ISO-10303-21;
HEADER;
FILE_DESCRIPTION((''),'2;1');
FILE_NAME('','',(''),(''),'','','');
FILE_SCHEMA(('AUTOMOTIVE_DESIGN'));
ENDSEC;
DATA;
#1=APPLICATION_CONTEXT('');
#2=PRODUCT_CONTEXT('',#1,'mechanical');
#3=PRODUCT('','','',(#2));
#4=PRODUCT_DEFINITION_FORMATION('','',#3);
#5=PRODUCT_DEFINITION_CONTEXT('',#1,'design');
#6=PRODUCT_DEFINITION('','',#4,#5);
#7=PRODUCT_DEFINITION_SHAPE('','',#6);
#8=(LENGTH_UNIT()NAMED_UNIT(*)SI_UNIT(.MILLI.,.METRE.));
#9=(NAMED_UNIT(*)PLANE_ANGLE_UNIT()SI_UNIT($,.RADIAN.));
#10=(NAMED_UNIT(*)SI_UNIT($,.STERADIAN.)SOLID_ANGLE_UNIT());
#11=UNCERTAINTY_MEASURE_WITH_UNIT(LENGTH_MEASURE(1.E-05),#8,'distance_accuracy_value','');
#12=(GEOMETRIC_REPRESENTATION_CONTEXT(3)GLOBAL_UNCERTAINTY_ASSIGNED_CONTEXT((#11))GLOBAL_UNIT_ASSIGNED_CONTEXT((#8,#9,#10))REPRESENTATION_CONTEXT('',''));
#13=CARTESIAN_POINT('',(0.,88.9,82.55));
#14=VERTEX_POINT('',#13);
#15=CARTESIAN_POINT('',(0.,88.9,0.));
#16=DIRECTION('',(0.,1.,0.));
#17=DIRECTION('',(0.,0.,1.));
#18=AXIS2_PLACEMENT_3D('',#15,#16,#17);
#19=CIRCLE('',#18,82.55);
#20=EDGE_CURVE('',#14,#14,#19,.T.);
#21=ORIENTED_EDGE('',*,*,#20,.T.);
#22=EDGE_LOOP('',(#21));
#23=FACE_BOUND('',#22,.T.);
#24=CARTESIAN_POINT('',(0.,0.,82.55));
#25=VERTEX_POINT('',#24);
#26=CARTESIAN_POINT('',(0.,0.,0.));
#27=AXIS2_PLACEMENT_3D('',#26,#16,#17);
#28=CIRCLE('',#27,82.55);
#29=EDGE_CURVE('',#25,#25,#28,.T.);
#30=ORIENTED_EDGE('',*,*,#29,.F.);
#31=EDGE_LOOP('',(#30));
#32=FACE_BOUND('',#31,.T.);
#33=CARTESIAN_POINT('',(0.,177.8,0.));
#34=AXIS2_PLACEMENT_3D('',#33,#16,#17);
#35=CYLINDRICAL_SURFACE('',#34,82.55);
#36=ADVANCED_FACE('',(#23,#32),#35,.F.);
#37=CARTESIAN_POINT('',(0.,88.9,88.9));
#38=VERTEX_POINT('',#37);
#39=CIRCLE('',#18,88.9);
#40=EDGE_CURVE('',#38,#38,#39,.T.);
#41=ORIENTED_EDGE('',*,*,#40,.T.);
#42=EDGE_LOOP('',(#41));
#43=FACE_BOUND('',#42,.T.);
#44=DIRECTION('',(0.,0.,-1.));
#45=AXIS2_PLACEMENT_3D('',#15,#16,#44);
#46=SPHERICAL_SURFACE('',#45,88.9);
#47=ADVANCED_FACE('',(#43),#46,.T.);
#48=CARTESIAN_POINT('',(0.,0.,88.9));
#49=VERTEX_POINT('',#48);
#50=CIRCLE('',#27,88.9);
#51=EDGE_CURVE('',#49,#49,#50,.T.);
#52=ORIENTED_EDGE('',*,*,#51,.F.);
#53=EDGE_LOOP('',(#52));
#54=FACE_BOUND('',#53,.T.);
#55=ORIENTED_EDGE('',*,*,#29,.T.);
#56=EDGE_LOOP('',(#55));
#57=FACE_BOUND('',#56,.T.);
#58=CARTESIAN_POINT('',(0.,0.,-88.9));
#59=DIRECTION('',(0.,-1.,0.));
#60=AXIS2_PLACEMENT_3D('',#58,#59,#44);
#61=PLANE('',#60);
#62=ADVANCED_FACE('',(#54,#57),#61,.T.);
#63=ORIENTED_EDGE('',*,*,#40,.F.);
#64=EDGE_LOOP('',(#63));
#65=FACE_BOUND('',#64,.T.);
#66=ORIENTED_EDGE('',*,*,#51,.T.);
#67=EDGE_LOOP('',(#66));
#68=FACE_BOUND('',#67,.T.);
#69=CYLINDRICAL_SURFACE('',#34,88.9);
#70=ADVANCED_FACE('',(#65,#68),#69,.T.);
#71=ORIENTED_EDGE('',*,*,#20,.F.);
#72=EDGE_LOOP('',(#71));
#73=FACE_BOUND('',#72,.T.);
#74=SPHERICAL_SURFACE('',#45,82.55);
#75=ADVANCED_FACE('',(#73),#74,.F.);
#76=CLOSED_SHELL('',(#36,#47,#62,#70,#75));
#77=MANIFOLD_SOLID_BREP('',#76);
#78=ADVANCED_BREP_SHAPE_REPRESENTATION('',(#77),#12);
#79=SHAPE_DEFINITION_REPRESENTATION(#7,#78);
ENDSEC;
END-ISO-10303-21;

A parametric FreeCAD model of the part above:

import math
import FreeCAD as App
import Part
import Sketcher
from FreeCAD import Vector
Q = App.Units.Quantity

doc = App.newDocument("Part")
params = doc.addObject("Spreadsheet::Sheet", "Params")
for row, (alias, value) in enumerate([
    ("sketch1_radius", "3.5 in"),
    ("sketch1_radius2", "3.25 in"),
    ("sketch1_width", "3.5 in"),
    ("revolution_angle", "360 deg"),
], start=1):
    params.set(f"A{row}", alias)
    params.set(f"B{row}", "=" + value)
    params.setAlias(f"B{row}", alias)

body = doc.addObject("PartDesign::Body", "Body")

# Sketch on YZ plane
sketch1 = body.newObject("Sketcher::SketchObject", "Sketch")
sketch1.AttachmentSupport = (doc.getObject("YZ_Plane"), [""])
sketch1.MapMode = "FlatFace"
sketch1.addGeometry([
    Part.LineSegment(Vector(0, -88.9, 0), Vector(88.9, -88.9, 0)),  # 0
    Part.ArcOfCircle(Part.Circle(Vector(88.9, 0, 0), Vector(0, 0, 1), 88.9), math.radians(-90), math.radians(0)),  # 1
    Part.LineSegment(Vector(177.8, 0, 0), Vector(171.45, 0, 0)),  # 2
    Part.ArcOfCircle(Part.Circle(Vector(88.9, 0, 0), Vector(0, 0, 1), 82.55), math.radians(-90), math.radians(0)),  # 3
    Part.LineSegment(Vector(88.9, -82.55, 0), Vector(0, -82.55, 0)),  # 4
    Part.LineSegment(Vector(0, -82.55, 0), Vector(0, -88.9, 0)),  # 5
], False)
sketch1.addConstraint([
    Sketcher.Constraint("Tangent", 0, 2, 1, 1),
    Sketcher.Constraint("Coincident", 1, 2, 2, 1),
    Sketcher.Constraint("Coincident", 2, 2, 3, 2),
    Sketcher.Constraint("Tangent", 3, 1, 4, 1),
    Sketcher.Constraint("Coincident", 4, 2, 5, 1),
    Sketcher.Constraint("Coincident", 5, 2, 0, 1),
    Sketcher.Constraint("Horizontal", 0),
    Sketcher.Constraint("Horizontal", 2),
    Sketcher.Constraint("Horizontal", 4),
    Sketcher.Constraint("Vertical", 5),
    Sketcher.Constraint("Coincident", 3, 3, 1, 3),
    Sketcher.Constraint("PointOnObject", 1, 3, -1),
    Sketcher.Constraint("PointOnObject", 1, 2, -1),
    Sketcher.Constraint("PointOnObject", 4, 2, -2),
    Sketcher.Constraint("Radius", 1, Q("3.5 in")),
    Sketcher.Constraint("Radius", 3, Q("3.25 in")),
    Sketcher.Constraint("DistanceX", 0, 1, 0, 2, Q("3.5 in")),
])
sketch1.setExpression("Constraints[14]", "Params.sketch1_radius")
sketch1.setExpression("Constraints[15]", "Params.sketch1_radius2")
sketch1.setExpression("Constraints[16]", "Params.sketch1_width")
revolution = body.newObject("PartDesign::Revolution", "Revolution")
revolution.Profile = sketch1
revolution.ReferenceAxis = (sketch1, ["H_Axis"])
revolution.setExpression("Angle", "Params.revolution_angle")

doc.recompute()
